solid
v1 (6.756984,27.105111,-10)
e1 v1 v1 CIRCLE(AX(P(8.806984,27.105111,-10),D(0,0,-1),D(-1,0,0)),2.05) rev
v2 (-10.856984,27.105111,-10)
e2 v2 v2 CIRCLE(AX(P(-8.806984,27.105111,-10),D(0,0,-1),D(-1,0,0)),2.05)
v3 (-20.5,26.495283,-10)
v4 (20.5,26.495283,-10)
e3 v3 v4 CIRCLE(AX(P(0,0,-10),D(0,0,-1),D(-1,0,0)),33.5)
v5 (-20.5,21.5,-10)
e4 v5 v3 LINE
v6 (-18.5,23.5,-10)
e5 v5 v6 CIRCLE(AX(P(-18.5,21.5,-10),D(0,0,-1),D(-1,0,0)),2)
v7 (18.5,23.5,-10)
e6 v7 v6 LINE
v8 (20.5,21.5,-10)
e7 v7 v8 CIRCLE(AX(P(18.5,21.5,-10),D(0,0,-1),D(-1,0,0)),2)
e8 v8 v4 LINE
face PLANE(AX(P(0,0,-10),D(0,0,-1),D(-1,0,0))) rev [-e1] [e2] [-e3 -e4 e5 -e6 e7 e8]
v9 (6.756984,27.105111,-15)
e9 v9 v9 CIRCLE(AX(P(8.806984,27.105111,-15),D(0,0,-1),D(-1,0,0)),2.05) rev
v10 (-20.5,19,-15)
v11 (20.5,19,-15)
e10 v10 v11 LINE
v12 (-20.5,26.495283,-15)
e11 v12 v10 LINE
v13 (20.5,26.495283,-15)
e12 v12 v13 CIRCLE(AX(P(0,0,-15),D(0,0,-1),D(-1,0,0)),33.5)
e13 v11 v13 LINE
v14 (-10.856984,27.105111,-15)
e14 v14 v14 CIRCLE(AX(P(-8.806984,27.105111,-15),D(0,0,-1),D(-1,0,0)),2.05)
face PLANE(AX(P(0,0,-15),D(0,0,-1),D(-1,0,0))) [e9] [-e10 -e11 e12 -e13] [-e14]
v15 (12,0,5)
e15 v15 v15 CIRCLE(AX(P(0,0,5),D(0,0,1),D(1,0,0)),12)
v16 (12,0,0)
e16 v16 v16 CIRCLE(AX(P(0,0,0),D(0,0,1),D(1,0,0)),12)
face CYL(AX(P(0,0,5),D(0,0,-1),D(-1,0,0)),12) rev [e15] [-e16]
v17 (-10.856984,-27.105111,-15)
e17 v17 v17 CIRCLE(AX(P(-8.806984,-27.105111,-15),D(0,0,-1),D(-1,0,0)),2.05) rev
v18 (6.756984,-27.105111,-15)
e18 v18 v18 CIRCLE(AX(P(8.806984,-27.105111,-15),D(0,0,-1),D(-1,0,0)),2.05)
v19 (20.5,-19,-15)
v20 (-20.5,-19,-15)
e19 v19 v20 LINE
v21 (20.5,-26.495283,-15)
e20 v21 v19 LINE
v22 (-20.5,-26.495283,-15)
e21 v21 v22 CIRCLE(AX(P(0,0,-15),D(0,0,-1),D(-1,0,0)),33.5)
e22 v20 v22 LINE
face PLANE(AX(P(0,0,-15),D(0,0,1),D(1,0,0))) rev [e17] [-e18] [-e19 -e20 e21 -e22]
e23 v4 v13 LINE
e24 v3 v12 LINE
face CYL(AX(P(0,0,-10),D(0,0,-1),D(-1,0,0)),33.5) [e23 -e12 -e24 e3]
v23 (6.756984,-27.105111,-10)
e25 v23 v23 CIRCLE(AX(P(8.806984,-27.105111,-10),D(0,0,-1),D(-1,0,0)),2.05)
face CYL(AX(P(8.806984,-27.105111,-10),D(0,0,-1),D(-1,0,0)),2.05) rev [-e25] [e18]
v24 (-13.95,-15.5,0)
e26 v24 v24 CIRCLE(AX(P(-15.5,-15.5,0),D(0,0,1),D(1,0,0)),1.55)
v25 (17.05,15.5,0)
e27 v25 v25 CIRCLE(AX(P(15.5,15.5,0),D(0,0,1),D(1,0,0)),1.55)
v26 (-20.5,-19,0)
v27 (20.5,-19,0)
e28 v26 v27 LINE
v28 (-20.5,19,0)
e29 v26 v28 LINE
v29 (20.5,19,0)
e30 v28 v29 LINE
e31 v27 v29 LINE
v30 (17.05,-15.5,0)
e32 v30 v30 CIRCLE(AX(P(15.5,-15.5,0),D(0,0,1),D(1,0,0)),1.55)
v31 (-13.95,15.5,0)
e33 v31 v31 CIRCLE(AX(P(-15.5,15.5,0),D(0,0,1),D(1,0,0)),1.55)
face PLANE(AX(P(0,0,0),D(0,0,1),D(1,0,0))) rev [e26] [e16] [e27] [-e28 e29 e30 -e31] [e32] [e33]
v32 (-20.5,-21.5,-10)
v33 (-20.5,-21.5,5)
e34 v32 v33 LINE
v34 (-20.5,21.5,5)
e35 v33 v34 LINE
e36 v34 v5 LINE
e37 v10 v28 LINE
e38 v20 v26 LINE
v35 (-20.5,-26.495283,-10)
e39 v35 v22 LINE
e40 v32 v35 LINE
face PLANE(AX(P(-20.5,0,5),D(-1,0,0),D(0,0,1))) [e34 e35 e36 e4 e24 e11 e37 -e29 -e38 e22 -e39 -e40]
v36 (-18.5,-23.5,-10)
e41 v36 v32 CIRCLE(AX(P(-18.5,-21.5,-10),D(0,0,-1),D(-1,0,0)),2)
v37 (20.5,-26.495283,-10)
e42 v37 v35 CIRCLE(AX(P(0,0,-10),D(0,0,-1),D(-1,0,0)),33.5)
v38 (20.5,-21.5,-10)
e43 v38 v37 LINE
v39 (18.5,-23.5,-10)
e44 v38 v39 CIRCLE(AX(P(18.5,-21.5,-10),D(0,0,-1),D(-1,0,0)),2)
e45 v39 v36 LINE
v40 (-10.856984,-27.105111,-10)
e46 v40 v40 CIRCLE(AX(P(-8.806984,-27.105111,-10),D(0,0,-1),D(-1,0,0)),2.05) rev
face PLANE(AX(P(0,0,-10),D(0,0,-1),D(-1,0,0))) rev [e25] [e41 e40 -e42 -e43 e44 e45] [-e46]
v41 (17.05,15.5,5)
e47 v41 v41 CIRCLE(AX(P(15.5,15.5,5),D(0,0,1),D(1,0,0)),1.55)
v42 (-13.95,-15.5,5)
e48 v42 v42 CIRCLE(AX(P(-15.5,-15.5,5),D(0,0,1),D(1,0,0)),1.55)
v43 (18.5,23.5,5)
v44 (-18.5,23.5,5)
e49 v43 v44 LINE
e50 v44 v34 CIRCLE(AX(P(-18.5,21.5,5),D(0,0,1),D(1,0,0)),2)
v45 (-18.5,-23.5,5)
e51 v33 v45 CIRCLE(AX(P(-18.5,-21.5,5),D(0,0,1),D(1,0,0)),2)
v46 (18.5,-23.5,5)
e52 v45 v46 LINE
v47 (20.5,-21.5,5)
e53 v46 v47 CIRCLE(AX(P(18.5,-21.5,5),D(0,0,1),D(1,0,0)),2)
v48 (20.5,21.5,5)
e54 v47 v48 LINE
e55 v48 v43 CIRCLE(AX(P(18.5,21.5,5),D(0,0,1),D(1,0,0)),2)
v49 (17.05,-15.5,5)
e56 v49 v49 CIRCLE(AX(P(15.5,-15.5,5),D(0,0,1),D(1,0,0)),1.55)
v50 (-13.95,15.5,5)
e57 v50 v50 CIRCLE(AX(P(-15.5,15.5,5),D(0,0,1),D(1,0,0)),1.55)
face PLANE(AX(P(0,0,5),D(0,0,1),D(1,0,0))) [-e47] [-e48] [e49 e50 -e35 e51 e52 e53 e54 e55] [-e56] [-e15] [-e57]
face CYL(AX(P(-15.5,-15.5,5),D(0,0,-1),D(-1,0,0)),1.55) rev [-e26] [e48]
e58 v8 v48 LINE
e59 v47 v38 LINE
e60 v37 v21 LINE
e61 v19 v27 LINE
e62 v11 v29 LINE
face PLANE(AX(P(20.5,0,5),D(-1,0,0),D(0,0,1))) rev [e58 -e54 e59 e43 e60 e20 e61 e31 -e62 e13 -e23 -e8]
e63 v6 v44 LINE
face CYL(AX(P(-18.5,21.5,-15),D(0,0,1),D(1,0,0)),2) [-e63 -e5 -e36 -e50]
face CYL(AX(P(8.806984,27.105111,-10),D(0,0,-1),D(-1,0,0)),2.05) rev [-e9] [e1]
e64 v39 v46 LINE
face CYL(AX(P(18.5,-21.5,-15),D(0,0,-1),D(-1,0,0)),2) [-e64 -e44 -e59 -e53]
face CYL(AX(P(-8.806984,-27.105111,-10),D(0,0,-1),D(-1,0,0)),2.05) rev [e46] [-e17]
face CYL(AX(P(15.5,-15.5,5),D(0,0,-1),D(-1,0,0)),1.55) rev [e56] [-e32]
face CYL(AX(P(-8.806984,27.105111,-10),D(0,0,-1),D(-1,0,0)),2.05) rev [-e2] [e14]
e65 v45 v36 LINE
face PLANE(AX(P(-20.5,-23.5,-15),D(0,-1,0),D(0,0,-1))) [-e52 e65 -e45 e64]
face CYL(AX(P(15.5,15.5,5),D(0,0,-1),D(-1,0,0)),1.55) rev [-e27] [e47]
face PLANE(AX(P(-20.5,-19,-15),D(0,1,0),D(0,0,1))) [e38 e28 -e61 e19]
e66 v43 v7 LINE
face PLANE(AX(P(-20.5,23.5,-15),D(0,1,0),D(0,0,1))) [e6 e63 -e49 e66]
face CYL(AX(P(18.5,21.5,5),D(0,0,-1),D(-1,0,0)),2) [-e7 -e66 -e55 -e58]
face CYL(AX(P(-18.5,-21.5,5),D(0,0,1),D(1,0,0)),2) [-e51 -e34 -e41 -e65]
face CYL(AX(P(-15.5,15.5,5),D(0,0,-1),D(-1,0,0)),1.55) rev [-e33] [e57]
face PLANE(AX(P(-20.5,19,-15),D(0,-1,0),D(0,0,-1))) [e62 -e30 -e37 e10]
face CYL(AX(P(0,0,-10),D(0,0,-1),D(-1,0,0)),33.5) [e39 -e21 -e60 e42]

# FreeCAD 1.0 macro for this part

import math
import FreeCAD as App
import Part
import Sketcher

V = App.Vector
Q = App.Units.Quantity


def edges_at(feature, points):
    """Names of the edges that pass closest to the given points."""
    edges = feature.Shape.Edges
    near = lambda p: min(range(len(edges)), key=lambda i: edges[i].distToShape(Part.Vertex(*p))[0])
    return sorted({f"Edge{near(p) + 1}" for p in points})

doc = App.newDocument("Part")
body = doc.addObject("PartDesign::Body", "Body")

# Sketch on XY plane
sketch1 = body.newObject("Sketcher::SketchObject", "Sketch")
sketch1.AttachmentSupport = (doc.getObject("XY_Plane"), [""])
sketch1.MapMode = "FlatFace"
sketch1.addGeometry([
    Part.LineSegment(V(-20.5, 19, 0), V(-20.5, -19, 0)),  # 0
    Part.LineSegment(V(-20.5, -19, 0), V(20.5, -19, 0)),  # 1
    Part.LineSegment(V(20.5, -19, 0), V(20.5, 19, 0)),  # 2
    Part.LineSegment(V(20.5, 19, 0), V(-20.5, 19, 0)),  # 3
    Part.Circle(V(-15.5, -15.5, 0), V(0, 0, 1), 1.6),  # 4
    Part.Circle(V(15.5, -15.5, 0), V(0, 0, 1), 1.6),  # 5
    Part.Circle(V(-15.5, 15.5, 0), V(0, 0, 1), 1.6),  # 6
    Part.Circle(V(0, 0, 0), V(0, 0, 1), 12),  # 7
    Part.Circle(V(15.5, 15.5, 0), V(0, 0, 1), 1.6),  # 8
], False)
sketch1.addConstraint([
    Sketcher.Constraint("Coincident", 0, 2, 1, 1),
    Sketcher.Constraint("Coincident", 1, 2, 2, 1),
    Sketcher.Constraint("Coincident", 2, 2, 3, 1),
    Sketcher.Constraint("Coincident", 3, 2, 0, 1),
    Sketcher.Constraint("Vertical", 0),
    Sketcher.Constraint("Horizontal", 1),
    Sketcher.Constraint("Vertical", 2),
    Sketcher.Constraint("Horizontal", 3),
    Sketcher.Constraint("Coincident", 7, 3, -1, 1),
    Sketcher.Constraint("Equal", 4, 5),
    Sketcher.Constraint("Equal", 5, 6),
    Sketcher.Constraint("Equal", 6, 8),
    Sketcher.Constraint("Symmetric", 5, 3, 6, 3, -1, 1),
    Sketcher.Constraint("Symmetric", 4, 3, 8, 3, -1, 1),
    Sketcher.Constraint("Symmetric", 0, 2, 2, 2, -1, 1),
    Sketcher.Constraint("Symmetric", 4, 3, 5, 3, -2),
    Sketcher.Constraint("Diameter", 7, Q("24 mm")),
    Sketcher.Constraint("Diameter", 4, Q("3.1 mm")),
    Sketcher.Constraint("DistanceX", 1, 1, 1, 2, Q("41 mm")),
    Sketcher.Constraint("DistanceY", 0, 2, 0, 1, Q("38 mm")),
    Sketcher.Constraint("DistanceX", 4, 3, 5, 3, Q("31 mm")),
    Sketcher.Constraint("DistanceY", 4, 3, 6, 3, Q("31 mm")),
])
pad1 = body.newObject("PartDesign::Pad", "Pad")
pad1.Profile = sketch1
pad1.Length = 5

# Sketch on XY plane
sketch2 = body.newObject("Sketcher::SketchObject", "Sketch001")
sketch2.AttachmentSupport = (doc.getObject("XY_Plane"), [""])
sketch2.MapMode = "FlatFace"
sketch2.AttachmentOffset = App.Placement(V(0, 0, 5), App.Rotation())
sketch2.addGeometry([
    Part.LineSegment(V(-20.5, 23.5, 0), V(-20.5, 19, 0)),  # 0
    Part.LineSegment(V(-20.5, 19, 0), V(20.5, 19, 0)),  # 1
    Part.LineSegment(V(20.5, 19, 0), V(20.5, 23.5, 0)),  # 2
    Part.LineSegment(V(20.5, 23.5, 0), V(-20.5, 23.5, 0)),  # 3
    Part.LineSegment(V(-20.5, -19, 0), V(-20.5, -23.5, 0)),  # 4
    Part.LineSegment(V(-20.5, -23.5, 0), V(20.5, -23.5, 0)),  # 5
    Part.LineSegment(V(20.5, -23.5, 0), V(20.5, -19, 0)),  # 6
    Part.LineSegment(V(20.5, -19, 0), V(-20.5, -19, 0)),  # 7
], False)
sketch2.addConstraint([
    Sketcher.Constraint("Coincident", 0, 2, 1, 1),
    Sketcher.Constraint("Coincident", 1, 2, 2, 1),
    Sketcher.Constraint("Coincident", 2, 2, 3, 1),
    Sketcher.Constraint("Coincident", 3, 2, 0, 1),
    Sketcher.Constraint("Coincident", 4, 2, 5, 1),
    Sketcher.Constraint("Coincident", 5, 2, 6, 1),
    Sketcher.Constraint("Coincident", 6, 2, 7, 1),
    Sketcher.Constraint("Coincident", 7, 2, 4, 1),
    Sketcher.Constraint("Vertical", 0),
    Sketcher.Constraint("Horizontal", 1),
    Sketcher.Constraint("Vertical", 2),
    Sketcher.Constraint("Horizontal", 3),
    Sketcher.Constraint("Vertical", 4),
    Sketcher.Constraint("Horizontal", 5),
    Sketcher.Constraint("Vertical", 6),
    Sketcher.Constraint("Horizontal", 7),
    Sketcher.Constraint("Symmetric", 2, 2, 4, 2, -1, 1),
    Sketcher.Constraint("Symmetric", 0, 2, 6, 2, -1, 1),
    Sketcher.Constraint("Vertical", 3, 2, 4, 2),
    Sketcher.Constraint("DistanceX", 1, 1, 1, 2, Q("41 mm")),
    Sketcher.Constraint("DistanceY", 0, 2, 0, 1, Q("4.5 mm")),
    Sketcher.Constraint("DistanceY", -1, 1, 0, 2, Q("19 mm")),
])
pad2 = body.newObject("PartDesign::Pad", "Pad001")
pad2.Profile = sketch2
pad2.Length = 20
pad2.Reversed = True

# Sketch on XY plane
sketch3 = body.newObject("Sketcher::SketchObject", "Sketch002")
sketch3.AttachmentSupport = (doc.getObject("XY_Plane"), [""])
sketch3.MapMode = "FlatFace"
sketch3.AttachmentOffset = App.Placement(V(0, 0, -15), App.Rotation())
sketch3.addGeometry([
    Part.LineSegment(V(20.5, 26.5, 0), V(20.5, 23.5, 0)),  # 0
    Part.LineSegment(V(20.5, 23.5, 0), V(-20.5, 23.5, 0)),  # 1
    Part.LineSegment(V(-20.5, 23.5, 0), V(-20.5, 26.5, 0)),  # 2
    Part.ArcOfCircle(Part.Circle(V(0, 0, 0), V(0, 0, 1), 33.5), math.radians(90), math.radians(128)),  # 3
    Part.ArcOfCircle(Part.Circle(V(0, 0, 0), V(0, 0, 1), 33.5), math.radians(52), math.radians(90)),  # 4
    Part.Circle(V(8.8, 27.1, 0), V(0, 0, 1), 2),  # 5
    Part.Circle(V(-8.8, 27.1, 0), V(0, 0, 1), 2),  # 6
    Part.LineSegment(V(20.5, -23.5, 0), V(20.5, -26.5, 0)),  # 7
    Part.ArcOfCircle(Part.Circle(V(0, 0, 0), V(0, 0, 1), 33.5), math.radians(-90), math.radians(-52)),  # 8
    Part.ArcOfCircle(Part.Circle(V(0, 0, 0), V(0, 0, 1), 33.5), math.radians(-128), math.radians(-90)),  # 9
    Part.LineSegment(V(-20.5, -26.5, 0), V(-20.5, -23.5, 0)),  # 10
    Part.LineSegment(V(-20.5, -23.5, 0), V(20.5, -23.5, 0)),  # 11
    Part.Circle(V(8.8, -27.1, 0), V(0, 0, 1), 2),  # 12
    Part.Circle(V(-8.8, -27.1, 0), V(0, 0, 1), 2),  # 13
], False)
sketch3.addConstraint([
    Sketcher.Constraint("Coincident", 0, 2, 1, 1),
    Sketcher.Constraint("Coincident", 1, 2, 2, 1),
    Sketcher.Constraint("Coincident", 2, 2, 3, 2),
    Sketcher.Constraint("Tangent", 3, 1, 4, 2),
    Sketcher.Constraint("Coincident", 4, 1, 0, 1),
    Sketcher.Constraint("Coincident", 7, 2, 8, 2),
    Sketcher.Constraint("Tangent", 8, 1, 9, 2),
    Sketcher.Constraint("Coincident", 9, 1, 10, 1),
    Sketcher.Constraint("Coincident", 10, 2, 11, 1),
    Sketcher.Constraint("Coincident", 11, 2, 7, 1),
    Sketcher.Constraint("Vertical", 0),
    Sketcher.Constraint("Horizontal", 1),
    Sketcher.Constraint("Vertical", 2),
    Sketcher.Constraint("Vertical", 7),
    Sketcher.Constraint("Vertical", 10),
    Sketcher.Constraint("Horizontal", 11),
    Sketcher.Constraint("Coincident", 3, 3, -1, 1),
    Sketcher.Constraint("Coincident", 8, 3, -1, 1),
    Sketcher.Constraint("Equal", 3, 4),
    Sketcher.Constraint("Equal", 5, 6),
    Sketcher.Constraint("Equal", 4, 8),
    Sketcher.Constraint("Equal", 8, 9),
    Sketcher.Constraint("Equal", 6, 12),
    Sketcher.Constraint("Equal", 12, 13),
    Sketcher.Constraint("Symmetric", 6, 3, 12, 3, -1, 1),
    Sketcher.Constraint("Symmetric", 5, 3, 13, 3, -1, 1),
    Sketcher.Constraint("Symmetric", 0, 2, 10, 2, -1, 1),
    Sketcher.Constraint("Symmetric", 5, 3, 6, 3, -2),
    Sketcher.Constraint("PointOnObject", 3, 1, -2),
    Sketcher.Constraint("PointOnObject", 8, 1, -2),
    Sketcher.Constraint("Horizontal", 2, 2, 4, 1),
    Sketcher.Constraint("Horizontal", 7, 2, 9, 1),
    Sketcher.Constraint("Diameter", 5, Q("4.1 mm")),
    Sketcher.Constraint("Radius", 3, Q("33.5 mm")),
    Sketcher.Constraint("DistanceX", 1, 2, 1, 1, Q("41 mm")),
    Sketcher.Constraint("DistanceY", 0, 2, 3, 1, Q("10 mm")),
    Sketcher.Constraint("DistanceY", -1, 1, 5, 3, Q("27.105111 mm")),
    Sketcher.Constraint("DistanceX", 6, 3, 5, 3, Q("17.613969 mm")),
])
pad3 = body.newObject("PartDesign::Pad", "Pad002")
pad3.Profile = sketch3
pad3.Length = 5
doc.recompute()

fillet = body.newObject("PartDesign::Fillet", "Fillet")
fillet.Base = (pad3, edges_at(pad3, [
    (20.5, 23.5, -2.5),
    (-20.5, 23.5, -2.5),
    (-20.5, -23.5, -2.5),
    (20.5, -23.5, -2.5),
]))
fillet.Radius = 2

doc.recompute()
